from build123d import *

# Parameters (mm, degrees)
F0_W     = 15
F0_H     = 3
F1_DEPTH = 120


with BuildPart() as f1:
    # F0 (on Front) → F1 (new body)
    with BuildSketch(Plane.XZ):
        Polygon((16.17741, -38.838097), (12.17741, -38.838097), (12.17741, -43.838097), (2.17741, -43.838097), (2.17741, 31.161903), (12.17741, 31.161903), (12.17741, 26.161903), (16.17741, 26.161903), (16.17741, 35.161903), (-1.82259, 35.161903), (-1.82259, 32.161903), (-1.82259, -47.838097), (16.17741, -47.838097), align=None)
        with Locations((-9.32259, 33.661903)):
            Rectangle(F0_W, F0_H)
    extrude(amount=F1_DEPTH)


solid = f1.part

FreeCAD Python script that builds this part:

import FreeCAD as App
import Part
import Sketcher
from FreeCAD import Vector


def add_polygon(sketch, points):
    """Adds a closed chain of lines whose ends are joined by coincident constraints."""
    first, n = sketch.GeometryCount, len(points)
    for a, b in zip(points, points[1:] + points[:1]):
        sketch.addGeometry(Part.LineSegment(App.Vector(*a, 0), App.Vector(*b, 0)), False)
    for i in range(n):
        sketch.addConstraint(Sketcher.Constraint("Coincident", first + i, 2, first + (i + 1) % n, 1))

doc = App.newDocument("Part")
body = doc.addObject("PartDesign::Body", "Body")

# Sketch on XZ plane
sketch1 = body.newObject("Sketcher::SketchObject", "Sketch")
sketch1.AttachmentSupport = (doc.getObject("XZ_Plane"), [""])
sketch1.MapMode = "FlatFace"
add_polygon(sketch1, [(16.2, -38.8), (12.2, -38.8), (12.2, -43.8), (2.2, -43.8), (2.2, 31.2), (12.2, 31.2), (12.2, 26.2), (16.2, 26.2), (16.2, 35.2), (-16.8, 35.2), (-16.8, 32.2), (-1.8, 32.2), (-1.8, -47.8), (16.2, -47.8)])  # lines 0-13
sketch1.addConstraint([
    Sketcher.Constraint("Horizontal", 0),
    Sketcher.Constraint("Vertical", 1),
    Sketcher.Constraint("Horizontal", 2),
    Sketcher.Constraint("Vertical", 3),
    Sketcher.Constraint("Horizontal", 4),
    Sketcher.Constraint("Vertical", 5),
    Sketcher.Constraint("Horizontal", 6),
    Sketcher.Constraint("Vertical", 7),
    Sketcher.Constraint("Horizontal", 8),
    Sketcher.Constraint("Vertical", 9),
    Sketcher.Constraint("Horizontal", 10),
    Sketcher.Constraint("Vertical", 11),
    Sketcher.Constraint("Horizontal", 12),
    Sketcher.Constraint("Vertical", 13),
    Sketcher.Constraint("Vertical", 1, 2, 4, 2),
    Sketcher.Constraint("Vertical", 7, 2, 12, 2),
    Sketcher.Constraint("Equal", 1, 5),
    Sketcher.Constraint("Equal", 7, 13),
    Sketcher.Constraint("DistanceX", 0, 2, 0, 1, 4.0),
    Sketcher.Constraint("DistanceX", 2, 2, 2, 1, 10.0),
    Sketcher.Constraint("DistanceX", 8, 2, 8, 1, 33.0),
    Sketcher.Constraint("DistanceX", 10, 1, 10, 2, 15.0),
    Sketcher.Constraint("DistanceY", 1, 2, 1, 1, 5.0),
    Sketcher.Constraint("DistanceY", 3, 1, 3, 2, 75.0),
    Sketcher.Constraint("DistanceY", 7, 1, 7, 2, 9.0),
    Sketcher.Constraint("DistanceY", 9, 2, 9, 1, 3.0),
    Sketcher.Constraint("DistanceX", -1, 1, 0, 2, 12.17741),
    Sketcher.Constraint("DistanceY", 0, 2, -1, 1, 38.838097),
])
pad1 = body.newObject("PartDesign::Pad", "Pad")
pad1.Profile = sketch1
pad1.Length = 120

doc.recompute()
